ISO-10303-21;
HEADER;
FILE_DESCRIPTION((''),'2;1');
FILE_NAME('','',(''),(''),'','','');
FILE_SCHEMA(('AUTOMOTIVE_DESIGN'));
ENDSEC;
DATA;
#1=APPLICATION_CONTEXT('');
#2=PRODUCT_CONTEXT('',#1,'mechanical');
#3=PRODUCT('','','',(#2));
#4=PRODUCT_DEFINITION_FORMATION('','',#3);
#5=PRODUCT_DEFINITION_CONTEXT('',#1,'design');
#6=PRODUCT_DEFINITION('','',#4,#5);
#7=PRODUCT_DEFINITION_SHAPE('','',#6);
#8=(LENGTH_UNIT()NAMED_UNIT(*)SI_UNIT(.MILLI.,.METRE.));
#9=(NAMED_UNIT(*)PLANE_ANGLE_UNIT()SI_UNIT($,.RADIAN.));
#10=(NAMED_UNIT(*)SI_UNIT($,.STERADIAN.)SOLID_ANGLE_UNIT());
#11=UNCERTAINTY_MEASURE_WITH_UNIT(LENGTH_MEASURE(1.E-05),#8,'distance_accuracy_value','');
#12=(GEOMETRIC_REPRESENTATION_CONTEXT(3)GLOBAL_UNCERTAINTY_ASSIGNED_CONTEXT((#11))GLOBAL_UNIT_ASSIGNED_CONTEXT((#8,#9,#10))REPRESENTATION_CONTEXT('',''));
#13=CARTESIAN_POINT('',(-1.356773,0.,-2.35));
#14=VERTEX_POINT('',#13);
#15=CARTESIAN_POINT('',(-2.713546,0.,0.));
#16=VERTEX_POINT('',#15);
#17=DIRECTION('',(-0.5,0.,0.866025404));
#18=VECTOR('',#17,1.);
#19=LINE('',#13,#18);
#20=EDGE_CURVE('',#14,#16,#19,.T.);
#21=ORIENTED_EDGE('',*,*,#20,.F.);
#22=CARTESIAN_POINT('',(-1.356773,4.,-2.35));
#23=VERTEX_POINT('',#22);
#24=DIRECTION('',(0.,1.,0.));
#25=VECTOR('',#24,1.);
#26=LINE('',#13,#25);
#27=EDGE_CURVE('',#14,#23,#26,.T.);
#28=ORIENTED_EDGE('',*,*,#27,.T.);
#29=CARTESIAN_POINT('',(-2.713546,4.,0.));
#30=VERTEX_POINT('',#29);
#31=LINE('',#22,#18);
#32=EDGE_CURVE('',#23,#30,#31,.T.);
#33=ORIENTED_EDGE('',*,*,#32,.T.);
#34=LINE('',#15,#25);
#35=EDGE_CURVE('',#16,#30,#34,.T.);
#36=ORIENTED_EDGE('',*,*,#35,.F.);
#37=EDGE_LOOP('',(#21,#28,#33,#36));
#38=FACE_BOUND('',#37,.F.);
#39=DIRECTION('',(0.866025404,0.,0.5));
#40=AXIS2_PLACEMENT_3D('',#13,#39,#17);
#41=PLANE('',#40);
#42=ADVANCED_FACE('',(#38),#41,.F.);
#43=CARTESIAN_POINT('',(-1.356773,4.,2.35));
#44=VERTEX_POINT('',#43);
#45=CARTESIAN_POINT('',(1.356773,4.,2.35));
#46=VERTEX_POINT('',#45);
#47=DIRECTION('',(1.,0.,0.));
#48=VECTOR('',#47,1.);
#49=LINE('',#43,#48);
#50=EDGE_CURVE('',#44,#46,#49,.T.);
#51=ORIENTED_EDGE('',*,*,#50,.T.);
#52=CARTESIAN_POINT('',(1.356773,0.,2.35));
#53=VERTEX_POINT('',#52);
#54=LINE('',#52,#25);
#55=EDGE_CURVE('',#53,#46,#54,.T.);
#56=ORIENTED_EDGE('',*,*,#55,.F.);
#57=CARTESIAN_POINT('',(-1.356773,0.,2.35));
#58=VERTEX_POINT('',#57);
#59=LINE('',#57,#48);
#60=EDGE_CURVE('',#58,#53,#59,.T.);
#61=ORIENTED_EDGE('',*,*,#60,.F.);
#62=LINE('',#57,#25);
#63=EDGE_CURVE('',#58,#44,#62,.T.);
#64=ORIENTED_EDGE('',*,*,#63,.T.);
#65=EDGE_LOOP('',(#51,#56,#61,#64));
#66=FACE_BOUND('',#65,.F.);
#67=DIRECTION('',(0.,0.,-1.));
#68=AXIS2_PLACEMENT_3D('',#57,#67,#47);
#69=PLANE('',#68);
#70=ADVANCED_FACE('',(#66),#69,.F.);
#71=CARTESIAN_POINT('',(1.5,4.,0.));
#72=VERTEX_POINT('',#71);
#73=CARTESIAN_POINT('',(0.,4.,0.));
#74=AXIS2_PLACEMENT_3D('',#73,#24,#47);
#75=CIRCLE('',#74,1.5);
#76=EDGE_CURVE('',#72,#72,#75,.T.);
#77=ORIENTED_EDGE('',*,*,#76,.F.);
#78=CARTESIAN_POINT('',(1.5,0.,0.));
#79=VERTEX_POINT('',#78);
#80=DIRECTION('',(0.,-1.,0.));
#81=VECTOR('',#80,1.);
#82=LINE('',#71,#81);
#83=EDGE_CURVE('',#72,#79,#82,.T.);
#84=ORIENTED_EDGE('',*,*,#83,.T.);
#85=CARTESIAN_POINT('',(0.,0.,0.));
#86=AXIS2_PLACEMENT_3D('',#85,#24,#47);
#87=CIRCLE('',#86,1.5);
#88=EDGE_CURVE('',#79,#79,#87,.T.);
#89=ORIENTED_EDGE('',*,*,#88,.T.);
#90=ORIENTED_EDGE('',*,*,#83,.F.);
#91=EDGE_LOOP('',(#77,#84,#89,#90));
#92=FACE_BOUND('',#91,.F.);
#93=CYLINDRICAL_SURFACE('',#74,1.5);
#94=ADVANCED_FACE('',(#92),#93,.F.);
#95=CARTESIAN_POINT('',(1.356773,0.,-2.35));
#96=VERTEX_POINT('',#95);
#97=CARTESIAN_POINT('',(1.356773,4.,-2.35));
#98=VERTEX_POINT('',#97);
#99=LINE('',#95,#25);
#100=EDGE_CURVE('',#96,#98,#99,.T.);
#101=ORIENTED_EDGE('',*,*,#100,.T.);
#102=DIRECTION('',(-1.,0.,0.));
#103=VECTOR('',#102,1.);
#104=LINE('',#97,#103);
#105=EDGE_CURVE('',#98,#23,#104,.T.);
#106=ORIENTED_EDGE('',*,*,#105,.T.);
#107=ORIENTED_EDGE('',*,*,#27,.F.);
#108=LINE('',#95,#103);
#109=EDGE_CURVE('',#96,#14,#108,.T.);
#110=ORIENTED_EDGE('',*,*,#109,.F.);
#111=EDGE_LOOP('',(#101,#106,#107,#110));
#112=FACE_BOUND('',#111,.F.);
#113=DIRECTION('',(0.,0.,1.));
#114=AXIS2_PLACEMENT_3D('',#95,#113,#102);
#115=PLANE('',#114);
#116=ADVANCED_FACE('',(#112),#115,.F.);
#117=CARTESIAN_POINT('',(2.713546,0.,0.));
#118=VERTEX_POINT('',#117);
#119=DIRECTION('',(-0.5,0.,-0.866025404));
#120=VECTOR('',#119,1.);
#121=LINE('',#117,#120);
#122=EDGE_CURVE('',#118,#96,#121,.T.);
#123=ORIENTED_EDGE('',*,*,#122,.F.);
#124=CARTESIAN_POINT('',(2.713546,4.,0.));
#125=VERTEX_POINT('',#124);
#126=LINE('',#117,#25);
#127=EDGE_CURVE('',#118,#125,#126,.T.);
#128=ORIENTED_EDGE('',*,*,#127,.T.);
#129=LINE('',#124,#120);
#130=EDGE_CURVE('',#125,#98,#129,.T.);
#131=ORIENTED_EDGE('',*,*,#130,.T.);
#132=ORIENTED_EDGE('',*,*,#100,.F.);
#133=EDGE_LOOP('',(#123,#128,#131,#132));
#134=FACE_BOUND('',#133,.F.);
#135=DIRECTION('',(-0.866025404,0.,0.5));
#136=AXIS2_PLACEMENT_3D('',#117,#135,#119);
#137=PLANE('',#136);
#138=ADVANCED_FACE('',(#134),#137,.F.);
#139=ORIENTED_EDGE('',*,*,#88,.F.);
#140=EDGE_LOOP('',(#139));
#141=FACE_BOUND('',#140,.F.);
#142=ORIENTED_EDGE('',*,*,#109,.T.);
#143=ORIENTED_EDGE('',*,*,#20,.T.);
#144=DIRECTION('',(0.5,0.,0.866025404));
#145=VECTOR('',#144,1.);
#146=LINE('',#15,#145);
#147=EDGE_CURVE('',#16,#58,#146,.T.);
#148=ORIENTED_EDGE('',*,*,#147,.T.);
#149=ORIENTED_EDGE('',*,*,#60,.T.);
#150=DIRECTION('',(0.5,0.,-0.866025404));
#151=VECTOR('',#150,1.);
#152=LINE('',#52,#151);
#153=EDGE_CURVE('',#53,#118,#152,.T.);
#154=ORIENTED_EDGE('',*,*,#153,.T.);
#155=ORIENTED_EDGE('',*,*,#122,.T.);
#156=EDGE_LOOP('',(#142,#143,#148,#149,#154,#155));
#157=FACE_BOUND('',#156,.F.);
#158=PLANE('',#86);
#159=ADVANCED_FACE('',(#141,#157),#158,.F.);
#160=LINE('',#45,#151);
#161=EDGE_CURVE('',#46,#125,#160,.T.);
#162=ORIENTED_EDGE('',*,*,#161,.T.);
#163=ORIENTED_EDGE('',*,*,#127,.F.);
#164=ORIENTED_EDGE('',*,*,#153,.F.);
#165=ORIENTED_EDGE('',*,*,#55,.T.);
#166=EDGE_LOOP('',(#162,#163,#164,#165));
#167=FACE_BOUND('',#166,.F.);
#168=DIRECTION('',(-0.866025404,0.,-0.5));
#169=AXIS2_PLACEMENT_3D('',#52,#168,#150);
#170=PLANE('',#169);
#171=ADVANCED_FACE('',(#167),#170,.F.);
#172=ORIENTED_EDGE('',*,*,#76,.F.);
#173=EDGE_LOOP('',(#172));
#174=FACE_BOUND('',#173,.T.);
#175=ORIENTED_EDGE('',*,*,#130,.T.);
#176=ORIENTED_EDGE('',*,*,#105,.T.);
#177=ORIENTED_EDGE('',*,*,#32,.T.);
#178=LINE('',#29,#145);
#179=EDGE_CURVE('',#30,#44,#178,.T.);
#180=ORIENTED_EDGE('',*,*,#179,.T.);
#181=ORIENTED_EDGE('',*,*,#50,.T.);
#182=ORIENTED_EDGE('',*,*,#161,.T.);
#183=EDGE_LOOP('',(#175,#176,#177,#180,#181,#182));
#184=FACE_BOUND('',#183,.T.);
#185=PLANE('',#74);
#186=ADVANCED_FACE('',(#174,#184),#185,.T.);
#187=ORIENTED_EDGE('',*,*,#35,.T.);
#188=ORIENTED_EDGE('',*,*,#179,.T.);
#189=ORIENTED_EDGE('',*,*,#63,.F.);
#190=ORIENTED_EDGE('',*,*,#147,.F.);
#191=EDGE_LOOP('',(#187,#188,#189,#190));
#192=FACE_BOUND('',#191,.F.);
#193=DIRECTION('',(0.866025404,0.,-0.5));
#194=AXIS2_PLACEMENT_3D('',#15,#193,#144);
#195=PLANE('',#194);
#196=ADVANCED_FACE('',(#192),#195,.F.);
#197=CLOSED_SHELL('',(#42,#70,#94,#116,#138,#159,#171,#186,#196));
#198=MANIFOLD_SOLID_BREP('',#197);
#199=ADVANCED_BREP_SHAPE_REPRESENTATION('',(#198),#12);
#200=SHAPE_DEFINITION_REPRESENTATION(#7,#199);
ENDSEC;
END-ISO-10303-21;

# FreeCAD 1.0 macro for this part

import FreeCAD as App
import Part
import Sketcher
from FreeCAD import Vector
Q = App.Units.Quantity

doc = App.newDocument("Part")
body = doc.addObject("PartDesign::Body", "Body")

sketch1 = doc.addObject("Sketcher::SketchObject", "Sketch")
body.addObject(sketch1)
sketch1.AttachmentSupport = (doc.XZ_Plane, [""])
sketch1.MapMode = "FlatFace"
sketch1.addGeometry(Part.LineSegment(Vector(2.7, 0, 0), Vector(1.4, -2.4, 0)), False)
sketch1.addGeometry(Part.LineSegment(Vector(1.4, -2.4, 0), Vector(-1.4, -2.4, 0)), False)
sketch1.addGeometry(Part.LineSegment(Vector(-1.4, -2.4, 0), Vector(-2.7, 0, 0)), False)
sketch1.addGeometry(Part.LineSegment(Vector(-2.7, 0, 0), Vector(-1.4, 2.4, 0)), False)
sketch1.addGeometry(Part.LineSegment(Vector(-1.4, 2.4, 0), Vector(1.4, 2.4, 0)), False)
sketch1.addGeometry(Part.LineSegment(Vector(1.4, 2.4, 0), Vector(2.7, 0, 0)), False)
sketch1.addConstraint(Sketcher.Constraint("Coincident", 0, 2, 1, 1))
sketch1.addConstraint(Sketcher.Constraint("Coincident", 1, 2, 2, 1))
sketch1.addConstraint(Sketcher.Constraint("Coincident", 2, 2, 3, 1))
sketch1.addConstraint(Sketcher.Constraint("Coincident", 3, 2, 4, 1))
sketch1.addConstraint(Sketcher.Constraint("Coincident", 4, 2, 5, 1))
sketch1.addConstraint(Sketcher.Constraint("Coincident", 5, 2, 0, 1))
sketch1.addConstraint(Sketcher.Constraint("Horizontal", 1))
sketch1.addConstraint(Sketcher.Constraint("Horizontal", 4))
sketch1.addConstraint(Sketcher.Constraint("Symmetric", 0, 2, 3, 2, -1, 1))
sketch1.addConstraint(Sketcher.Constraint("Symmetric", 2, 2, 5, 2, -1, 1))
sketch1.addConstraint(Sketcher.Constraint("PointOnObject", 2, 2, -1))
sketch1.addConstraint(Sketcher.Constraint("Parallel", 2, 5))
sketch1.addConstraint(Sketcher.Constraint("Vertical", 1, 2, 3, 2))
sketch1.addConstraint(Sketcher.Constraint("Angle", 0, Q("-120 deg")))
sketch1.addConstraint(Sketcher.Constraint("DistanceY", 1, 2, 3, 2, 4.7))
sketch1.addConstraint(Sketcher.Constraint("DistanceX", 1, 2, 1, 1, 2.713546))
pad1 = doc.addObject("PartDesign::Pad", "Pad")
body.addObject(pad1)
pad1.Profile = sketch1
pad1.Length = 4
pad1.Reversed = True

sketch2 = doc.addObject("Sketcher::SketchObject", "Sketch001")
body.addObject(sketch2)
sketch2.AttachmentSupport = (doc.XZ_Plane, [""])
sketch2.MapMode = "FlatFace"
sketch2.AttachmentOffset = App.Placement(Vector(0, 0, -4), App.Rotation())
sketch2.addGeometry(Part.Circle(Vector(0, 0, 0), Vector(0, 0, 1), 1.5), False)
sketch2.addConstraint(Sketcher.Constraint("Coincident", 0, 3, -1, 1))
sketch2.addConstraint(Sketcher.Constraint("Diameter", 0, 3.0))
pocket1 = doc.addObject("PartDesign::Pocket", "Pocket")
body.addObject(pocket1)
pocket1.Profile = sketch2
pocket1.Type = "ThroughAll"
pocket1.Reversed = True

doc.recompute()
